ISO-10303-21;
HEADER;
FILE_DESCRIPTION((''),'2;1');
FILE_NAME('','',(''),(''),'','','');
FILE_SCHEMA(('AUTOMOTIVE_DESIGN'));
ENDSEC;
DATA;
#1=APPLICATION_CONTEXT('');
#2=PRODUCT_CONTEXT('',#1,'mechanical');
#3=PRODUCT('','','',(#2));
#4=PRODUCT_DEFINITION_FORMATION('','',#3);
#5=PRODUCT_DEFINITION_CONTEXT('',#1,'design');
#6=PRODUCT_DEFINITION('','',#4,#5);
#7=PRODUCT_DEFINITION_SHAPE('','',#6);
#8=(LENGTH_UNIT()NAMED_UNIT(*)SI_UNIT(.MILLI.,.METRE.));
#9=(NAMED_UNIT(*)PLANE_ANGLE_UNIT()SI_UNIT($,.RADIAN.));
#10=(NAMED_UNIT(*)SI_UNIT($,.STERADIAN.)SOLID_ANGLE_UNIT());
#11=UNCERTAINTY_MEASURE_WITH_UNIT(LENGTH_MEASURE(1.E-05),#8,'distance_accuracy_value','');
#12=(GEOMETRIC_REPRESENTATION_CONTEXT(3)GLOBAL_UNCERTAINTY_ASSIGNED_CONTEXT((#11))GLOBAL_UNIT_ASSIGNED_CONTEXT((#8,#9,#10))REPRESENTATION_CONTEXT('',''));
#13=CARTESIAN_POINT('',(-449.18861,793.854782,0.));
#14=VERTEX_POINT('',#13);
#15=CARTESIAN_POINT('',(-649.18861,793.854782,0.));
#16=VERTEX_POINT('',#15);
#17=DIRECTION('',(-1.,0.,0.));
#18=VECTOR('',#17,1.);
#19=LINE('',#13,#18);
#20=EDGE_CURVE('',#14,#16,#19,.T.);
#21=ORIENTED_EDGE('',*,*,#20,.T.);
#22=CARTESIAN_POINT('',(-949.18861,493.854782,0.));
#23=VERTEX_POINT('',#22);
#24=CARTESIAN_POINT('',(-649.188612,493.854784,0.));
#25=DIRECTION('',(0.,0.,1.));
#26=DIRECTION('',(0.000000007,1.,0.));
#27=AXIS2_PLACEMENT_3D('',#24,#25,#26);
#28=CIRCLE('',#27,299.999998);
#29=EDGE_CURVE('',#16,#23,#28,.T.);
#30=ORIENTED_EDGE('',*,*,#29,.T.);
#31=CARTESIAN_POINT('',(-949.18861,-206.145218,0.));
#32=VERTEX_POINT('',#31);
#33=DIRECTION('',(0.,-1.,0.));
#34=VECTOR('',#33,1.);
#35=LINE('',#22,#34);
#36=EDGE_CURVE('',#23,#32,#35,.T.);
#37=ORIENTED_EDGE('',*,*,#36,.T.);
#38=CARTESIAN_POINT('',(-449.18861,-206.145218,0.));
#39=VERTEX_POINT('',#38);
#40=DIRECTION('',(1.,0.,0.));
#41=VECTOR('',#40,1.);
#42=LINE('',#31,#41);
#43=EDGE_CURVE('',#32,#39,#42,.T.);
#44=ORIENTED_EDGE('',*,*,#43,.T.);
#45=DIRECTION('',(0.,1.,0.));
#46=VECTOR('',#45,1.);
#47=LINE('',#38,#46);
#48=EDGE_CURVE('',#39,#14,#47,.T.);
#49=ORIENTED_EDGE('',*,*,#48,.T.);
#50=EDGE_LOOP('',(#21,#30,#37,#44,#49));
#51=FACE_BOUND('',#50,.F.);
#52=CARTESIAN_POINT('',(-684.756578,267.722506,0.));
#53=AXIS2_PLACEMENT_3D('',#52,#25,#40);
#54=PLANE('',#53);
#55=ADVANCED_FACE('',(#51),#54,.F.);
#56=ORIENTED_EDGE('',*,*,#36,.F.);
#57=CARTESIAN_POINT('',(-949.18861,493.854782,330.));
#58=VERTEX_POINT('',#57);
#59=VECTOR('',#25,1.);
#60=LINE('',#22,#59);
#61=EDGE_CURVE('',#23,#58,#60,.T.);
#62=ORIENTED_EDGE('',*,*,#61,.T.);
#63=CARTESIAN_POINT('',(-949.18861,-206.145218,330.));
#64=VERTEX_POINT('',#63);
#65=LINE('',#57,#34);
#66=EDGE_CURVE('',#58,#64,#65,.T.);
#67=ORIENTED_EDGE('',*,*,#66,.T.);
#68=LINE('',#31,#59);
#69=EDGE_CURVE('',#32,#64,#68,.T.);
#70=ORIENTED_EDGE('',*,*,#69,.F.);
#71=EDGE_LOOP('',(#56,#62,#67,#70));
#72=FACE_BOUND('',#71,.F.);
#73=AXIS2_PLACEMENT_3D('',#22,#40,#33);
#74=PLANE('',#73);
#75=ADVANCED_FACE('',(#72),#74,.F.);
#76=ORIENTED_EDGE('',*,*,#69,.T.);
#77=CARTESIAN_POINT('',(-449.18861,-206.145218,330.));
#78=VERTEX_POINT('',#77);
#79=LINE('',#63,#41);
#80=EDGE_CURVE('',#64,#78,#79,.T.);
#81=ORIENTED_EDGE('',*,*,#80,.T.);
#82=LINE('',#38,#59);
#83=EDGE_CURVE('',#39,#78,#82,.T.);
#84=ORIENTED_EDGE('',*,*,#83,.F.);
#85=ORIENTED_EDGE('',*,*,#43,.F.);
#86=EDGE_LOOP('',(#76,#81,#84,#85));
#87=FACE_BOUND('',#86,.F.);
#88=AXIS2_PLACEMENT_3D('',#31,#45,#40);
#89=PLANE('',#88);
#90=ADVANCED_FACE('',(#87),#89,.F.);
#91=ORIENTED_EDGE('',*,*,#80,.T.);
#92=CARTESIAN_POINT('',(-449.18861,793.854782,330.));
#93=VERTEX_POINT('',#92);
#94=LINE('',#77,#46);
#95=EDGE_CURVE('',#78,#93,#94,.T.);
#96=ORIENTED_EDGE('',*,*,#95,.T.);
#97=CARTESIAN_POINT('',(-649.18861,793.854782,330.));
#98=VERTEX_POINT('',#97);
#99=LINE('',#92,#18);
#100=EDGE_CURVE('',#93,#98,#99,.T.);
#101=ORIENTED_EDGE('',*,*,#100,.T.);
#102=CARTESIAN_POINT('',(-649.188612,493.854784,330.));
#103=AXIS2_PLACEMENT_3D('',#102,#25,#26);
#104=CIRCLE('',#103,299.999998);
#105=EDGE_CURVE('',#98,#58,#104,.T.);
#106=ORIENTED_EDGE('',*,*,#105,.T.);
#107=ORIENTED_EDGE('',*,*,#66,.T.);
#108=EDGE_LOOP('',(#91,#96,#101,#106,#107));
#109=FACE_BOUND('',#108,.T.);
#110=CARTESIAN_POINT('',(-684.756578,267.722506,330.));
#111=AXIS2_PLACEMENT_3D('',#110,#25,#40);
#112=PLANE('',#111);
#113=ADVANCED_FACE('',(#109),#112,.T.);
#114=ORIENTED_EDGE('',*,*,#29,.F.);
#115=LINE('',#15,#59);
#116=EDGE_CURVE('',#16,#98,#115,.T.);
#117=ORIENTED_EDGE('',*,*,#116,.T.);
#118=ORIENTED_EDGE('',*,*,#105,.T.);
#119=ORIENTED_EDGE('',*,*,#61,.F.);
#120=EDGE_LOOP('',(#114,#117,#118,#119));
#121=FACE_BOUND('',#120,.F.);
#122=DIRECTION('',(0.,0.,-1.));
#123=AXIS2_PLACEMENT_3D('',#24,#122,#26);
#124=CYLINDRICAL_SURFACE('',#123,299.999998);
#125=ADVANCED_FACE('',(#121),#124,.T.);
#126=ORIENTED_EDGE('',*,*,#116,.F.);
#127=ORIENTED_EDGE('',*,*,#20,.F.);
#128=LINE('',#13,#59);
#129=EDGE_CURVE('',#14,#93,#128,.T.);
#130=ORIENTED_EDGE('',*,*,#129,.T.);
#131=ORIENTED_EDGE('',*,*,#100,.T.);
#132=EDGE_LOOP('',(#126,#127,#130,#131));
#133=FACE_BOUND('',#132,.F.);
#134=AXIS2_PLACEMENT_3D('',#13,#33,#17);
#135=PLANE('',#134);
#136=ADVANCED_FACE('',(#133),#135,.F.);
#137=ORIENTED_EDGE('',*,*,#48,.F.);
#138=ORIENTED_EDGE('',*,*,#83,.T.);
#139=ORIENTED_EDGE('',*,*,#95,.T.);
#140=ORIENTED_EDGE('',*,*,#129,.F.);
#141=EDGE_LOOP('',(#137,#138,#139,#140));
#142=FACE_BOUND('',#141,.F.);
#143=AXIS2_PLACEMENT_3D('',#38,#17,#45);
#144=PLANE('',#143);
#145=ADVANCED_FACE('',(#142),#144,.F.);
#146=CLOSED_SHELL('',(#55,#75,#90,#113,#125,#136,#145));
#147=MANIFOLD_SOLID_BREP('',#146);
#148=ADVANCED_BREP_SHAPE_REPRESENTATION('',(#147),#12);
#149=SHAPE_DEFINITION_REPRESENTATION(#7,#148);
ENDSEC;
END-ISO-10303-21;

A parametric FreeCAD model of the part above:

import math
import FreeCAD as App
import Part
import Sketcher

doc = App.newDocument("Part")
body = doc.addObject("PartDesign::Body", "Body")

# Sketch on XY plane
sketch1 = body.newObject("Sketcher::SketchObject", "Sketch")
sketch1.AttachmentSupport = (doc.getObject("XY_Plane"), [""])
sketch1.MapMode = "FlatFace"
sketch1.addGeometry([
    Part.LineSegment(App.Vector(-449.18861, 793.854782, 0), App.Vector(-649.18861, 793.854782, 0)),  # 0
    Part.ArcOfCircle(Part.Circle(App.Vector(-649.188612, 493.854784, 0), App.Vector(0, 0, 1), 299.999998), math.radians(90), math.radians(180)),  # 1
    Part.LineSegment(App.Vector(-949.18861, 493.854782, 0), App.Vector(-949.18861, -206.145218, 0)),  # 2
    Part.LineSegment(App.Vector(-949.18861, -206.145218, 0), App.Vector(-449.18861, -206.145218, 0)),  # 3
    Part.LineSegment(App.Vector(-449.18861, -206.145218, 0), App.Vector(-449.18861, 793.854782, 0)),  # 4
], False)
sketch1.addConstraint([
    Sketcher.Constraint("Tangent", 0, 2, 1, 1),
    Sketcher.Constraint("Tangent", 1, 2, 2, 1),
    Sketcher.Constraint("Coincident", 2, 2, 3, 1),
    Sketcher.Constraint("Coincident", 3, 2, 4, 1),
    Sketcher.Constraint("Coincident", 4, 2, 0, 1),
    Sketcher.Constraint("Horizontal", 0),
    Sketcher.Constraint("Vertical", 2),
    Sketcher.Constraint("Horizontal", 3),
    Sketcher.Constraint("Vertical", 4),
    Sketcher.Constraint("DistanceX", 0, 2, 0, 1, 200.0),
    Sketcher.Constraint("DistanceX", 3, 1, 3, 2, 500.0),
    Sketcher.Constraint("DistanceY", 2, 2, 2, 1, 700.0),
    Sketcher.Constraint("DistanceX", 0, 2, -1, 1, 649.18861),
    Sketcher.Constraint("DistanceY", -1, 1, 0, 2, 793.854782),
])
pad1 = body.newObject("PartDesign::Pad", "Pad")
pad1.Profile = sketch1
pad1.Length = 330

doc.recompute()
